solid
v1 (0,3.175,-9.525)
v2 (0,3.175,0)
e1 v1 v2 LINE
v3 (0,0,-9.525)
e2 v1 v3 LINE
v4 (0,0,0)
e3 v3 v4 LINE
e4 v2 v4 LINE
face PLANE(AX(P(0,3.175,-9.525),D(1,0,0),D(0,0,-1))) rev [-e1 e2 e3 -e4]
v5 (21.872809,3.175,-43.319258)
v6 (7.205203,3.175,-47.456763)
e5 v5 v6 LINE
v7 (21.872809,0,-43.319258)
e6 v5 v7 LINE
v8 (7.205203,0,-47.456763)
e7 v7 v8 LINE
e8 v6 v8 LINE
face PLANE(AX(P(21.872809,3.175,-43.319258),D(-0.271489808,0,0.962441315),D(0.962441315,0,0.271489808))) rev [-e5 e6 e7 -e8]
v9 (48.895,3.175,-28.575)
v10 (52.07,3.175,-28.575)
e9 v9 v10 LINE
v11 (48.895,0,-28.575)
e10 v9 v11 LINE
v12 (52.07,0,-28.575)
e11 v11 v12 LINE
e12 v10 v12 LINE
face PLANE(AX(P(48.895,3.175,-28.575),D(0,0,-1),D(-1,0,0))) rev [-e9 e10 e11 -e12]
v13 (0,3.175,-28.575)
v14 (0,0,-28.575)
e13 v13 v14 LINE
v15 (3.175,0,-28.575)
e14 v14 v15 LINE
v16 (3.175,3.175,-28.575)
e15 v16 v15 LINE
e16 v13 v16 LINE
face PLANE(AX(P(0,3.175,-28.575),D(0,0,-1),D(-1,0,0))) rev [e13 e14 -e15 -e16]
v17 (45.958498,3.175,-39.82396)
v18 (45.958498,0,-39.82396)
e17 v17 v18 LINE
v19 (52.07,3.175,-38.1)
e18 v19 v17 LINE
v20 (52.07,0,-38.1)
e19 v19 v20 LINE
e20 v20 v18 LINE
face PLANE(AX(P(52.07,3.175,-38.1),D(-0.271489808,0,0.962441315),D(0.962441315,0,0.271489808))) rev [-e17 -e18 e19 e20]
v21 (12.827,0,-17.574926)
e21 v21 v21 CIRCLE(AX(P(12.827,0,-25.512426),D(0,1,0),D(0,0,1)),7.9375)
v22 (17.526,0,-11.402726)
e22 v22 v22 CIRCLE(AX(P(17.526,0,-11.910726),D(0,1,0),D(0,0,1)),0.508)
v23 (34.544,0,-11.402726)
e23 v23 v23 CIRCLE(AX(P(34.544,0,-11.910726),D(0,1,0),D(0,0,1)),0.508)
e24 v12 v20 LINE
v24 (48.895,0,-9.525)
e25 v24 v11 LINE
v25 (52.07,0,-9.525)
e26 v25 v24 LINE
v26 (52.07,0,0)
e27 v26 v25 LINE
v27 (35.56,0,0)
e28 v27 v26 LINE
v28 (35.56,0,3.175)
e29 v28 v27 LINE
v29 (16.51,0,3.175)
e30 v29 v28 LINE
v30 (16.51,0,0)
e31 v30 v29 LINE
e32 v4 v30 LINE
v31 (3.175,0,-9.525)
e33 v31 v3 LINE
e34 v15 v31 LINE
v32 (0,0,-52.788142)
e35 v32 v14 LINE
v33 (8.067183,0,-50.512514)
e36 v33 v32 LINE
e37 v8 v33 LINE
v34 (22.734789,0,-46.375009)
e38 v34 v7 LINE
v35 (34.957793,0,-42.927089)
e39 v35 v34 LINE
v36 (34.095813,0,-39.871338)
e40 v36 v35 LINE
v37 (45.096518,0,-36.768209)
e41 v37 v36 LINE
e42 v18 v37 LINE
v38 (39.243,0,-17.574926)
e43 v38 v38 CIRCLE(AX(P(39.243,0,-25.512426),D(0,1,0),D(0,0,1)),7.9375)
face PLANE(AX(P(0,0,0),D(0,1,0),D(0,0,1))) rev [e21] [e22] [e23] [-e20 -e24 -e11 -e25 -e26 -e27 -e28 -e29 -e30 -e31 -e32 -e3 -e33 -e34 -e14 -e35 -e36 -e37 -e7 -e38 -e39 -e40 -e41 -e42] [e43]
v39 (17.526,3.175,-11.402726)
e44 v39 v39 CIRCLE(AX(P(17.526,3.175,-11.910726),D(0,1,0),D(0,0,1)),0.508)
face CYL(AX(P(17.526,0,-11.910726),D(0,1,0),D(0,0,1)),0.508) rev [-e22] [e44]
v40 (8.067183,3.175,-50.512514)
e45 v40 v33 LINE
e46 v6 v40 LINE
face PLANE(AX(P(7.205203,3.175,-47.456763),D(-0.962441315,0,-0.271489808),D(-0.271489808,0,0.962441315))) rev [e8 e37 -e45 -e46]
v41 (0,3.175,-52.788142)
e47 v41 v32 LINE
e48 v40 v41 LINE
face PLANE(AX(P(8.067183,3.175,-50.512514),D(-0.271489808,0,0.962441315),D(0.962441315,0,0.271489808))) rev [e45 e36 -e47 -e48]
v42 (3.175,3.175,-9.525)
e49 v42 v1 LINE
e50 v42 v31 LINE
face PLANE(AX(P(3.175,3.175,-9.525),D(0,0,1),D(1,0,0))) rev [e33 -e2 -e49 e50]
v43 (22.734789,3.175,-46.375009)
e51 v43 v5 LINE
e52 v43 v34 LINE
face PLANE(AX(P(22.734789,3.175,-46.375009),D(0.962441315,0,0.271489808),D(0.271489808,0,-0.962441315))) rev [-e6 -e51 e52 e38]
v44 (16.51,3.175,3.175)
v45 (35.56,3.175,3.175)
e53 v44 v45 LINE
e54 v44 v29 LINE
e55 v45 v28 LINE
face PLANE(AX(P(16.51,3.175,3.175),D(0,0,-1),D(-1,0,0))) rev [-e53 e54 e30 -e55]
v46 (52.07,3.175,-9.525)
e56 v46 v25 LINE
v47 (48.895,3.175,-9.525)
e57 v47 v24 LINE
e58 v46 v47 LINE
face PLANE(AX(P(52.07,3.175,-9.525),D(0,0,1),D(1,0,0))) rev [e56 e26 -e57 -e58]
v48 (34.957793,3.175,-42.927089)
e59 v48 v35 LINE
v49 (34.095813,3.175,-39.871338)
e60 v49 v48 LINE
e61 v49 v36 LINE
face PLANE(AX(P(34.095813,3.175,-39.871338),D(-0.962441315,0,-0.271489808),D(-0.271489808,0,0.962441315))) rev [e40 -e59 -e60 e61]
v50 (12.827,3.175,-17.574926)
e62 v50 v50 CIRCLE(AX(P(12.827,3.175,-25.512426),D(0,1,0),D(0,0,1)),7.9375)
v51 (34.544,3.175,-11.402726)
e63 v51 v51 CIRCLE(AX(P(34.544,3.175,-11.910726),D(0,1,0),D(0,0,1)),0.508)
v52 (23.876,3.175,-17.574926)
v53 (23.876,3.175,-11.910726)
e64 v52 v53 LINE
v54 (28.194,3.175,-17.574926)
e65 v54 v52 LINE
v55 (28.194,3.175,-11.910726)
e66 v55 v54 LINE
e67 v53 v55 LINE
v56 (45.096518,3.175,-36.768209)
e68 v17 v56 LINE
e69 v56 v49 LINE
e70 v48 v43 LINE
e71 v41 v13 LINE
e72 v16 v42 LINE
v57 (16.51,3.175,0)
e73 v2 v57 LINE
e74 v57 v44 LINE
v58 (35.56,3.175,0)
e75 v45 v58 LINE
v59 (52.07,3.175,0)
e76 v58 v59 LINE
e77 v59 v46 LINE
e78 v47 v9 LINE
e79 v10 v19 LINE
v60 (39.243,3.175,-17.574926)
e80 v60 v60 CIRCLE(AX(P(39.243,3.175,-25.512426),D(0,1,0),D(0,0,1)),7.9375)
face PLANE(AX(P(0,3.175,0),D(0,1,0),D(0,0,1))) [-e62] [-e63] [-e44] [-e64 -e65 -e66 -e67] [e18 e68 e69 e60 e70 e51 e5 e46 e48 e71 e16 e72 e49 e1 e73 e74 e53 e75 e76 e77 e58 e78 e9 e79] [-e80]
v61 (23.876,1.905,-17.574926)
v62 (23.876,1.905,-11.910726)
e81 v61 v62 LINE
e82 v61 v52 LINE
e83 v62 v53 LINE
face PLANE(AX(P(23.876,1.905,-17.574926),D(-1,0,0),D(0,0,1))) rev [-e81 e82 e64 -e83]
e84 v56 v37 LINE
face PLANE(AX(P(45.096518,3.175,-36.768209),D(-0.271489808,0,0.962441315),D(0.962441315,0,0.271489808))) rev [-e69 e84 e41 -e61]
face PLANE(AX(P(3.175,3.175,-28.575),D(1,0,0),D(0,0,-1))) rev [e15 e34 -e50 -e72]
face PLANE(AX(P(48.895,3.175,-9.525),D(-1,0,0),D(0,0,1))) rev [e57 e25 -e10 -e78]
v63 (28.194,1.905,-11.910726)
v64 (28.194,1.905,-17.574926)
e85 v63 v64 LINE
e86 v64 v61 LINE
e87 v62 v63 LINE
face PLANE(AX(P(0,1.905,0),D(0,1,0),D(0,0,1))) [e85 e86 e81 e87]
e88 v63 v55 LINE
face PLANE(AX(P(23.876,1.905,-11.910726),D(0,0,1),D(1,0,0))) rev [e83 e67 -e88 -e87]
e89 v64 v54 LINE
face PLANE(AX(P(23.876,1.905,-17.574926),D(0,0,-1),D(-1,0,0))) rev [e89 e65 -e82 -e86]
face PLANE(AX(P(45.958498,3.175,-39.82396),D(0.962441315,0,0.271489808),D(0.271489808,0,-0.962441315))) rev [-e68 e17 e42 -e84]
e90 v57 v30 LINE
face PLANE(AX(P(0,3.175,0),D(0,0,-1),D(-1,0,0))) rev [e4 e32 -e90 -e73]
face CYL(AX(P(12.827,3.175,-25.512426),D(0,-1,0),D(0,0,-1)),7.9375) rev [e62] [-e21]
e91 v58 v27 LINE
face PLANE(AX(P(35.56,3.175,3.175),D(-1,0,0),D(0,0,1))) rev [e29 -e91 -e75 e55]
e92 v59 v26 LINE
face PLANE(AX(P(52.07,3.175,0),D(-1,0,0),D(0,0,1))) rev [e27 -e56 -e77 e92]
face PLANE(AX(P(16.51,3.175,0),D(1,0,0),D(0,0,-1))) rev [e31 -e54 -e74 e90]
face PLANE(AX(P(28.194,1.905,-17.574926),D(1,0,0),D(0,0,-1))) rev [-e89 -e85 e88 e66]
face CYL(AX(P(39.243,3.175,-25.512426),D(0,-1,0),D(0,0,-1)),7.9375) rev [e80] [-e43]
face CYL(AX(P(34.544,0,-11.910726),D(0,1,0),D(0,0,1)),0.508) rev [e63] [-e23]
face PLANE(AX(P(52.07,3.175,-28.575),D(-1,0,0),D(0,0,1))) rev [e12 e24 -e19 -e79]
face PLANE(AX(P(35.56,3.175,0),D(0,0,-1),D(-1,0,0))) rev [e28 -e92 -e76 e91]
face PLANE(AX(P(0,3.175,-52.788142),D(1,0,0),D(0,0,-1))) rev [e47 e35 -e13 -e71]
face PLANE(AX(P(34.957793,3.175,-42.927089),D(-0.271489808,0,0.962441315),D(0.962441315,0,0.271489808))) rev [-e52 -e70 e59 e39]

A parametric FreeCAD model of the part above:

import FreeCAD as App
import Part
import Sketcher
Q = App.Units.Quantity

doc = App.newDocument("Part")
body = doc.addObject("PartDesign::Body", "Body")

# Sketch on XZ plane
sketch1 = body.newObject("Sketcher::SketchObject", "Sketch")
sketch1.AttachmentSupport = (doc.getObject("XZ_Plane"), [""])
sketch1.MapMode = "FlatFace"
sketch1.addGeometry([
    Part.LineSegment(App.Vector(0, 0, 0), App.Vector(16.5, 0, 0)),  # 0
    Part.LineSegment(App.Vector(16.5, 0, 0), App.Vector(16.5, 3.2, 0)),  # 1
    Part.LineSegment(App.Vector(16.5, 3.2, 0), App.Vector(35.6, 3.2, 0)),  # 2
    Part.LineSegment(App.Vector(35.6, 3.2, 0), App.Vector(35.6, 0, 0)),  # 3
    Part.LineSegment(App.Vector(35.6, 0, 0), App.Vector(52.1, 0, 0)),  # 4
    Part.LineSegment(App.Vector(52.1, 0, 0), App.Vector(52.1, -9.5, 0)),  # 5
    Part.LineSegment(App.Vector(52.1, -9.5, 0), App.Vector(48.9, -9.5, 0)),  # 6
    Part.LineSegment(App.Vector(48.9, -9.5, 0), App.Vector(48.9, -28.6, 0)),  # 7
    Part.LineSegment(App.Vector(48.9, -28.6, 0), App.Vector(52.1, -28.6, 0)),  # 8
    Part.LineSegment(App.Vector(52.1, -28.6, 0), App.Vector(52.1, -38.1, 0)),  # 9
    Part.LineSegment(App.Vector(52.1, -38.1, 0), App.Vector(46, -39.8, 0)),  # 10
    Part.LineSegment(App.Vector(46, -39.8, 0), App.Vector(45.1, -36.8, 0)),  # 11
    Part.LineSegment(App.Vector(45.1, -36.8, 0), App.Vector(34.1, -39.9, 0)),  # 12
    Part.LineSegment(App.Vector(34.1, -39.9, 0), App.Vector(35, -42.9, 0)),  # 13
    Part.LineSegment(App.Vector(35, -42.9, 0), App.Vector(22.7, -46.4, 0)),  # 14
    Part.LineSegment(App.Vector(22.7, -46.4, 0), App.Vector(21.9, -43.3, 0)),  # 15
    Part.LineSegment(App.Vector(21.9, -43.3, 0), App.Vector(7.2, -47.5, 0)),  # 16
    Part.LineSegment(App.Vector(7.2, -47.5, 0), App.Vector(8.1, -50.5, 0)),  # 17
    Part.LineSegment(App.Vector(8.1, -50.5, 0), App.Vector(0, -52.8, 0)),  # 18
    Part.LineSegment(App.Vector(0, -52.8, 0), App.Vector(0, -28.6, 0)),  # 19
    Part.LineSegment(App.Vector(0, -28.6, 0), App.Vector(3.2, -28.6, 0)),  # 20
    Part.LineSegment(App.Vector(3.2, -28.6, 0), App.Vector(3.2, -9.5, 0)),  # 21
    Part.LineSegment(App.Vector(3.2, -9.5, 0), App.Vector(0, -9.5, 0)),  # 22
    Part.LineSegment(App.Vector(0, -9.5, 0), App.Vector(0, 0, 0)),  # 23
    Part.Circle(App.Vector(12.8, -25.5, 0), App.Vector(0, 0, 1), 7.9),  # 24
    Part.Circle(App.Vector(39.2, -25.5, 0), App.Vector(0, 0, 1), 7.9),  # 25
], False)
sketch1.addConstraint([
    Sketcher.Constraint("Coincident", 0, 2, 1, 1),
    Sketcher.Constraint("Coincident", 1, 2, 2, 1),
    Sketcher.Constraint("Coincident", 2, 2, 3, 1),
    Sketcher.Constraint("Coincident", 3, 2, 4, 1),
    Sketcher.Constraint("Coincident", 4, 2, 5, 1),
    Sketcher.Constraint("Coincident", 5, 2, 6, 1),
    Sketcher.Constraint("Coincident", 6, 2, 7, 1),
    Sketcher.Constraint("Coincident", 7, 2, 8, 1),
    Sketcher.Constraint("Coincident", 8, 2, 9, 1),
    Sketcher.Constraint("Coincident", 9, 2, 10, 1),
    Sketcher.Constraint("Coincident", 10, 2, 11, 1),
    Sketcher.Constraint("Coincident", 11, 2, 12, 1),
    Sketcher.Constraint("Coincident", 12, 2, 13, 1),
    Sketcher.Constraint("Coincident", 13, 2, 14, 1),
    Sketcher.Constraint("Coincident", 14, 2, 15, 1),
    Sketcher.Constraint("Coincident", 15, 2, 16, 1),
    Sketcher.Constraint("Coincident", 16, 2, 17, 1),
    Sketcher.Constraint("Coincident", 17, 2, 18, 1),
    Sketcher.Constraint("Coincident", 18, 2, 19, 1),
    Sketcher.Constraint("Coincident", 19, 2, 20, 1),
    Sketcher.Constraint("Coincident", 20, 2, 21, 1),
    Sketcher.Constraint("Coincident", 21, 2, 22, 1),
    Sketcher.Constraint("Coincident", 22, 2, 23, 1),
    Sketcher.Constraint("Coincident", 23, 2, 0, 1),
    Sketcher.Constraint("Horizontal", 0),
    Sketcher.Constraint("Vertical", 1),
    Sketcher.Constraint("Horizontal", 2),
    Sketcher.Constraint("Vertical", 3),
    Sketcher.Constraint("Horizontal", 4),
    Sketcher.Constraint("Vertical", 5),
    Sketcher.Constraint("Horizontal", 6),
    Sketcher.Constraint("Vertical", 7),
    Sketcher.Constraint("Horizontal", 8),
    Sketcher.Constraint("Vertical", 9),
    Sketcher.Constraint("Vertical", 19),
    Sketcher.Constraint("Horizontal", 20),
    Sketcher.Constraint("Vertical", 21),
    Sketcher.Constraint("Horizontal", 22),
    Sketcher.Constraint("Vertical", 23),
    Sketcher.Constraint("Coincident", 23, 2, -1, 1),
    Sketcher.Constraint("Equal", 24, 25),
    Sketcher.Constraint("PointOnObject", 3, 2, -1),
    Sketcher.Constraint("PointOnObject", 18, 2, -2),
    Sketcher.Constraint("Perpendicular", 10, 11),
    Sketcher.Constraint("Perpendicular", 11, 12),
    Sketcher.Constraint("Perpendicular", 12, 13),
    Sketcher.Constraint("Perpendicular", 13, 14),
    Sketcher.Constraint("Perpendicular", 14, 15),
    Sketcher.Constraint("Perpendicular", 15, 16),
    Sketcher.Constraint("Perpendicular", 16, 17),
    Sketcher.Constraint("Perpendicular", 17, 18),
    Sketcher.Constraint("Horizontal", 24, 3, 25, 3),
    Sketcher.Constraint("Horizontal", 8, 2, 19, 2),
    Sketcher.Constraint("Horizontal", 6, 2, 21, 2),
    Sketcher.Constraint("Vertical", 5, 2, 8, 2),
    Sketcher.Constraint("Equal", 0, 4),
    Sketcher.Constraint("Equal", 8, 20),
    Sketcher.Constraint("Equal", 22, 1),
    Sketcher.Constraint("Equal", 2, 7),
    Sketcher.Constraint("Equal", 5, 9),
    Sketcher.Constraint("Equal", 11, 13),
    Sketcher.Constraint("Equal", 13, 15),
    Sketcher.Constraint("Equal", 15, 17),
    Sketcher.Constraint("Diameter", 24, Q("0.625 in")),
    Sketcher.Constraint("Distance", 14, Q("0.5 in")),
    Sketcher.Constraint("Distance", 16, Q("0.6 in")),
    Sketcher.Constraint("DistanceX", 0, 1, 0, 2, Q("0.65 in")),
    Sketcher.Constraint("DistanceX", 2, 1, 2, 2, Q("0.75 in")),
    Sketcher.Constraint("DistanceY", 9, 2, -1, 1, Q("1.5 in")),
    Sketcher.Constraint("DistanceY", 5, 2, 2, 2, Q("0.5 in")),
    Sketcher.Constraint("Distance", 10, Q("0.25 in")),
    Sketcher.Constraint("Distance", 12, Q("0.45 in")),
    Sketcher.Constraint("Distance", 18, Q("0.33 in")),
    Sketcher.Constraint("DistanceX", 24, 3, 25, 3, Q("1.04 in")),
    Sketcher.Constraint("DistanceX", 25, 3, 6, 2, Q("0.38 in")),
    Sketcher.Constraint("Distance", 11, Q("0.125 in")),
    Sketcher.Constraint("DistanceY", 12, 2, 25, 3, 14.358911),
])
pad1 = body.newObject("PartDesign::Pad", "Pad")
pad1.Profile = sketch1
pad1.Length = Q("0.125 in")
pad1.Reversed = True

# Sketch on XZ plane
sketch2 = body.newObject("Sketcher::SketchObject", "Sketch001")
sketch2.AttachmentSupport = (doc.getObject("XZ_Plane"), [""])
sketch2.MapMode = "FlatFace"
sketch2.AttachmentOffset = App.Placement(App.Vector(0, 0, -0.125 * 25.4), App.Rotation())
sketch2.addGeometry([
    Part.LineSegment(App.Vector(23.9, -17.6, 0), App.Vector(23.9, -11.9, 0)),
    Part.LineSegment(App.Vector(23.9, -11.9, 0), App.Vector(28.2, -11.9, 0)),
    Part.LineSegment(App.Vector(28.2, -11.9, 0), App.Vector(28.2, -17.6, 0)),
    Part.LineSegment(App.Vector(28.2, -17.6, 0), App.Vector(23.9, -17.6, 0)),
], False)
sketch2.addConstraint([
    Sketcher.Constraint("Coincident", 0, 2, 1, 1),
    Sketcher.Constraint("Coincident", 1, 2, 2, 1),
    Sketcher.Constraint("Coincident", 2, 2, 3, 1),
    Sketcher.Constraint("Coincident", 3, 2, 0, 1),
    Sketcher.Constraint("Vertical", 0),
    Sketcher.Constraint("Horizontal", 1),
    Sketcher.Constraint("Vertical", 2),
    Sketcher.Constraint("Horizontal", 3),
    Sketcher.Constraint("DistanceX", 1, 1, 1, 2, Q("0.17 in")),
    Sketcher.Constraint("DistanceY", 0, 1, 0, 2, Q("0.223 in")),
    Sketcher.Constraint("DistanceX", -1, 1, 0, 2, Q("0.94 in")),
    Sketcher.Constraint("DistanceY", 0, 2, -1, 1, 11.910726),
])
pocket1 = body.newObject("PartDesign::Pocket", "Pocket")
pocket1.Profile = sketch2
pocket1.Length = Q("0.05 in")
pocket1.Reversed = True

# Sketch on XZ plane
sketch3 = body.newObject("Sketcher::SketchObject", "Sketch002")
sketch3.AttachmentSupport = (doc.getObject("XZ_Plane"), [""])
sketch3.MapMode = "FlatFace"
sketch3.AttachmentOffset = App.Placement(App.Vector(0, 0, -0.125 * 25.4), App.Rotation())
sketch3.addGeometry([
    Part.Circle(App.Vector(17.5, -11.9, 0), App.Vector(0, 0, 1), 0.5),
    Part.Circle(App.Vector(34.5, -11.9, 0), App.Vector(0, 0, 1), 0.5),
], False)
sketch3.addConstraint([
    Sketcher.Constraint("Equal", 0, 1),
    Sketcher.Constraint("Horizontal", 0, 3, 1, 3),
    Sketcher.Constraint("Diameter", 0, Q("0.04 in")),
    Sketcher.Constraint("DistanceX", -1, 1, 0, 3, Q("0.69 in")),
    Sketcher.Constraint("DistanceX", -1, 1, 1, 3, Q("1.36 in")),
    Sketcher.Constraint("DistanceY", 0, 3, -1, 1, 11.910726),
])
pocket2 = body.newObject("PartDesign::Pocket", "Pocket001")
pocket2.Profile = sketch3
pocket2.Type = "ThroughAll"
pocket2.Reversed = True

doc.recompute()
